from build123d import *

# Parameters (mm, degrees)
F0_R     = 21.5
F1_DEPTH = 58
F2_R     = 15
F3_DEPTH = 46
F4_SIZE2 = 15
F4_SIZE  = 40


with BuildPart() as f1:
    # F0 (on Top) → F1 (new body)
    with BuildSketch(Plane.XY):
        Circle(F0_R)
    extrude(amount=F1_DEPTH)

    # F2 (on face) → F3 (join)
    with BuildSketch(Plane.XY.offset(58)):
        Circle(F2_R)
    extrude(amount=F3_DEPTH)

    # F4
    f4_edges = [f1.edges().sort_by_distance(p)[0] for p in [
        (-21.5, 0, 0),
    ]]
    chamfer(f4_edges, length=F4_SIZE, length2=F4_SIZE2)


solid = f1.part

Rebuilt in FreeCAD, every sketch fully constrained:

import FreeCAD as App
import Part
import Sketcher


def edges_at(feature, points):
    """Names of the edges that pass closest to the given points."""
    edges = feature.Shape.Edges
    near = lambda p: min(range(len(edges)), key=lambda i: edges[i].distToShape(Part.Vertex(*p))[0])
    return sorted({f"Edge{near(p) + 1}" for p in points})

doc = App.newDocument("Part")
body = doc.addObject("PartDesign::Body", "Body")

# Sketch on XY plane
sketch1 = body.newObject("Sketcher::SketchObject", "Sketch")
sketch1.AttachmentSupport = (doc.getObject("XY_Plane"), [""])
sketch1.MapMode = "FlatFace"
sketch1.addGeometry(Part.Circle(App.Vector(0, 0, 0), App.Vector(0, 0, 1), 21.5), False)
sketch1.addConstraint([
    Sketcher.Constraint("Coincident", 0, 3, -1, 1),
    Sketcher.Constraint("Diameter", 0, 43.0),
])
pad1 = body.newObject("PartDesign::Pad", "Pad")
pad1.Profile = sketch1
pad1.Length = 58

# Sketch on XY plane
sketch2 = body.newObject("Sketcher::SketchObject", "Sketch001")
sketch2.AttachmentSupport = (doc.getObject("XY_Plane"), [""])
sketch2.MapMode = "FlatFace"
sketch2.AttachmentOffset = App.Placement(App.Vector(0, 0, 58), App.Rotation())
sketch2.addGeometry(Part.Circle(App.Vector(0, 0, 0), App.Vector(0, 0, 1), 15), False)
sketch2.addConstraint([
    Sketcher.Constraint("Coincident", 0, 3, -1, 1),
    Sketcher.Constraint("Diameter", 0, 30.0),
])
pad2 = body.newObject("PartDesign::Pad", "Pad001")
pad2.Profile = sketch2
pad2.Length = 46
doc.recompute()

chamfer = body.newObject("PartDesign::Chamfer", "Chamfer")
chamfer.Base = (pad2, edges_at(pad2, [(-21.5, 0, 0)]))
chamfer.ChamferType = "Two distances"
chamfer.Size = 40
chamfer.Size2 = 15

doc.recompute()
